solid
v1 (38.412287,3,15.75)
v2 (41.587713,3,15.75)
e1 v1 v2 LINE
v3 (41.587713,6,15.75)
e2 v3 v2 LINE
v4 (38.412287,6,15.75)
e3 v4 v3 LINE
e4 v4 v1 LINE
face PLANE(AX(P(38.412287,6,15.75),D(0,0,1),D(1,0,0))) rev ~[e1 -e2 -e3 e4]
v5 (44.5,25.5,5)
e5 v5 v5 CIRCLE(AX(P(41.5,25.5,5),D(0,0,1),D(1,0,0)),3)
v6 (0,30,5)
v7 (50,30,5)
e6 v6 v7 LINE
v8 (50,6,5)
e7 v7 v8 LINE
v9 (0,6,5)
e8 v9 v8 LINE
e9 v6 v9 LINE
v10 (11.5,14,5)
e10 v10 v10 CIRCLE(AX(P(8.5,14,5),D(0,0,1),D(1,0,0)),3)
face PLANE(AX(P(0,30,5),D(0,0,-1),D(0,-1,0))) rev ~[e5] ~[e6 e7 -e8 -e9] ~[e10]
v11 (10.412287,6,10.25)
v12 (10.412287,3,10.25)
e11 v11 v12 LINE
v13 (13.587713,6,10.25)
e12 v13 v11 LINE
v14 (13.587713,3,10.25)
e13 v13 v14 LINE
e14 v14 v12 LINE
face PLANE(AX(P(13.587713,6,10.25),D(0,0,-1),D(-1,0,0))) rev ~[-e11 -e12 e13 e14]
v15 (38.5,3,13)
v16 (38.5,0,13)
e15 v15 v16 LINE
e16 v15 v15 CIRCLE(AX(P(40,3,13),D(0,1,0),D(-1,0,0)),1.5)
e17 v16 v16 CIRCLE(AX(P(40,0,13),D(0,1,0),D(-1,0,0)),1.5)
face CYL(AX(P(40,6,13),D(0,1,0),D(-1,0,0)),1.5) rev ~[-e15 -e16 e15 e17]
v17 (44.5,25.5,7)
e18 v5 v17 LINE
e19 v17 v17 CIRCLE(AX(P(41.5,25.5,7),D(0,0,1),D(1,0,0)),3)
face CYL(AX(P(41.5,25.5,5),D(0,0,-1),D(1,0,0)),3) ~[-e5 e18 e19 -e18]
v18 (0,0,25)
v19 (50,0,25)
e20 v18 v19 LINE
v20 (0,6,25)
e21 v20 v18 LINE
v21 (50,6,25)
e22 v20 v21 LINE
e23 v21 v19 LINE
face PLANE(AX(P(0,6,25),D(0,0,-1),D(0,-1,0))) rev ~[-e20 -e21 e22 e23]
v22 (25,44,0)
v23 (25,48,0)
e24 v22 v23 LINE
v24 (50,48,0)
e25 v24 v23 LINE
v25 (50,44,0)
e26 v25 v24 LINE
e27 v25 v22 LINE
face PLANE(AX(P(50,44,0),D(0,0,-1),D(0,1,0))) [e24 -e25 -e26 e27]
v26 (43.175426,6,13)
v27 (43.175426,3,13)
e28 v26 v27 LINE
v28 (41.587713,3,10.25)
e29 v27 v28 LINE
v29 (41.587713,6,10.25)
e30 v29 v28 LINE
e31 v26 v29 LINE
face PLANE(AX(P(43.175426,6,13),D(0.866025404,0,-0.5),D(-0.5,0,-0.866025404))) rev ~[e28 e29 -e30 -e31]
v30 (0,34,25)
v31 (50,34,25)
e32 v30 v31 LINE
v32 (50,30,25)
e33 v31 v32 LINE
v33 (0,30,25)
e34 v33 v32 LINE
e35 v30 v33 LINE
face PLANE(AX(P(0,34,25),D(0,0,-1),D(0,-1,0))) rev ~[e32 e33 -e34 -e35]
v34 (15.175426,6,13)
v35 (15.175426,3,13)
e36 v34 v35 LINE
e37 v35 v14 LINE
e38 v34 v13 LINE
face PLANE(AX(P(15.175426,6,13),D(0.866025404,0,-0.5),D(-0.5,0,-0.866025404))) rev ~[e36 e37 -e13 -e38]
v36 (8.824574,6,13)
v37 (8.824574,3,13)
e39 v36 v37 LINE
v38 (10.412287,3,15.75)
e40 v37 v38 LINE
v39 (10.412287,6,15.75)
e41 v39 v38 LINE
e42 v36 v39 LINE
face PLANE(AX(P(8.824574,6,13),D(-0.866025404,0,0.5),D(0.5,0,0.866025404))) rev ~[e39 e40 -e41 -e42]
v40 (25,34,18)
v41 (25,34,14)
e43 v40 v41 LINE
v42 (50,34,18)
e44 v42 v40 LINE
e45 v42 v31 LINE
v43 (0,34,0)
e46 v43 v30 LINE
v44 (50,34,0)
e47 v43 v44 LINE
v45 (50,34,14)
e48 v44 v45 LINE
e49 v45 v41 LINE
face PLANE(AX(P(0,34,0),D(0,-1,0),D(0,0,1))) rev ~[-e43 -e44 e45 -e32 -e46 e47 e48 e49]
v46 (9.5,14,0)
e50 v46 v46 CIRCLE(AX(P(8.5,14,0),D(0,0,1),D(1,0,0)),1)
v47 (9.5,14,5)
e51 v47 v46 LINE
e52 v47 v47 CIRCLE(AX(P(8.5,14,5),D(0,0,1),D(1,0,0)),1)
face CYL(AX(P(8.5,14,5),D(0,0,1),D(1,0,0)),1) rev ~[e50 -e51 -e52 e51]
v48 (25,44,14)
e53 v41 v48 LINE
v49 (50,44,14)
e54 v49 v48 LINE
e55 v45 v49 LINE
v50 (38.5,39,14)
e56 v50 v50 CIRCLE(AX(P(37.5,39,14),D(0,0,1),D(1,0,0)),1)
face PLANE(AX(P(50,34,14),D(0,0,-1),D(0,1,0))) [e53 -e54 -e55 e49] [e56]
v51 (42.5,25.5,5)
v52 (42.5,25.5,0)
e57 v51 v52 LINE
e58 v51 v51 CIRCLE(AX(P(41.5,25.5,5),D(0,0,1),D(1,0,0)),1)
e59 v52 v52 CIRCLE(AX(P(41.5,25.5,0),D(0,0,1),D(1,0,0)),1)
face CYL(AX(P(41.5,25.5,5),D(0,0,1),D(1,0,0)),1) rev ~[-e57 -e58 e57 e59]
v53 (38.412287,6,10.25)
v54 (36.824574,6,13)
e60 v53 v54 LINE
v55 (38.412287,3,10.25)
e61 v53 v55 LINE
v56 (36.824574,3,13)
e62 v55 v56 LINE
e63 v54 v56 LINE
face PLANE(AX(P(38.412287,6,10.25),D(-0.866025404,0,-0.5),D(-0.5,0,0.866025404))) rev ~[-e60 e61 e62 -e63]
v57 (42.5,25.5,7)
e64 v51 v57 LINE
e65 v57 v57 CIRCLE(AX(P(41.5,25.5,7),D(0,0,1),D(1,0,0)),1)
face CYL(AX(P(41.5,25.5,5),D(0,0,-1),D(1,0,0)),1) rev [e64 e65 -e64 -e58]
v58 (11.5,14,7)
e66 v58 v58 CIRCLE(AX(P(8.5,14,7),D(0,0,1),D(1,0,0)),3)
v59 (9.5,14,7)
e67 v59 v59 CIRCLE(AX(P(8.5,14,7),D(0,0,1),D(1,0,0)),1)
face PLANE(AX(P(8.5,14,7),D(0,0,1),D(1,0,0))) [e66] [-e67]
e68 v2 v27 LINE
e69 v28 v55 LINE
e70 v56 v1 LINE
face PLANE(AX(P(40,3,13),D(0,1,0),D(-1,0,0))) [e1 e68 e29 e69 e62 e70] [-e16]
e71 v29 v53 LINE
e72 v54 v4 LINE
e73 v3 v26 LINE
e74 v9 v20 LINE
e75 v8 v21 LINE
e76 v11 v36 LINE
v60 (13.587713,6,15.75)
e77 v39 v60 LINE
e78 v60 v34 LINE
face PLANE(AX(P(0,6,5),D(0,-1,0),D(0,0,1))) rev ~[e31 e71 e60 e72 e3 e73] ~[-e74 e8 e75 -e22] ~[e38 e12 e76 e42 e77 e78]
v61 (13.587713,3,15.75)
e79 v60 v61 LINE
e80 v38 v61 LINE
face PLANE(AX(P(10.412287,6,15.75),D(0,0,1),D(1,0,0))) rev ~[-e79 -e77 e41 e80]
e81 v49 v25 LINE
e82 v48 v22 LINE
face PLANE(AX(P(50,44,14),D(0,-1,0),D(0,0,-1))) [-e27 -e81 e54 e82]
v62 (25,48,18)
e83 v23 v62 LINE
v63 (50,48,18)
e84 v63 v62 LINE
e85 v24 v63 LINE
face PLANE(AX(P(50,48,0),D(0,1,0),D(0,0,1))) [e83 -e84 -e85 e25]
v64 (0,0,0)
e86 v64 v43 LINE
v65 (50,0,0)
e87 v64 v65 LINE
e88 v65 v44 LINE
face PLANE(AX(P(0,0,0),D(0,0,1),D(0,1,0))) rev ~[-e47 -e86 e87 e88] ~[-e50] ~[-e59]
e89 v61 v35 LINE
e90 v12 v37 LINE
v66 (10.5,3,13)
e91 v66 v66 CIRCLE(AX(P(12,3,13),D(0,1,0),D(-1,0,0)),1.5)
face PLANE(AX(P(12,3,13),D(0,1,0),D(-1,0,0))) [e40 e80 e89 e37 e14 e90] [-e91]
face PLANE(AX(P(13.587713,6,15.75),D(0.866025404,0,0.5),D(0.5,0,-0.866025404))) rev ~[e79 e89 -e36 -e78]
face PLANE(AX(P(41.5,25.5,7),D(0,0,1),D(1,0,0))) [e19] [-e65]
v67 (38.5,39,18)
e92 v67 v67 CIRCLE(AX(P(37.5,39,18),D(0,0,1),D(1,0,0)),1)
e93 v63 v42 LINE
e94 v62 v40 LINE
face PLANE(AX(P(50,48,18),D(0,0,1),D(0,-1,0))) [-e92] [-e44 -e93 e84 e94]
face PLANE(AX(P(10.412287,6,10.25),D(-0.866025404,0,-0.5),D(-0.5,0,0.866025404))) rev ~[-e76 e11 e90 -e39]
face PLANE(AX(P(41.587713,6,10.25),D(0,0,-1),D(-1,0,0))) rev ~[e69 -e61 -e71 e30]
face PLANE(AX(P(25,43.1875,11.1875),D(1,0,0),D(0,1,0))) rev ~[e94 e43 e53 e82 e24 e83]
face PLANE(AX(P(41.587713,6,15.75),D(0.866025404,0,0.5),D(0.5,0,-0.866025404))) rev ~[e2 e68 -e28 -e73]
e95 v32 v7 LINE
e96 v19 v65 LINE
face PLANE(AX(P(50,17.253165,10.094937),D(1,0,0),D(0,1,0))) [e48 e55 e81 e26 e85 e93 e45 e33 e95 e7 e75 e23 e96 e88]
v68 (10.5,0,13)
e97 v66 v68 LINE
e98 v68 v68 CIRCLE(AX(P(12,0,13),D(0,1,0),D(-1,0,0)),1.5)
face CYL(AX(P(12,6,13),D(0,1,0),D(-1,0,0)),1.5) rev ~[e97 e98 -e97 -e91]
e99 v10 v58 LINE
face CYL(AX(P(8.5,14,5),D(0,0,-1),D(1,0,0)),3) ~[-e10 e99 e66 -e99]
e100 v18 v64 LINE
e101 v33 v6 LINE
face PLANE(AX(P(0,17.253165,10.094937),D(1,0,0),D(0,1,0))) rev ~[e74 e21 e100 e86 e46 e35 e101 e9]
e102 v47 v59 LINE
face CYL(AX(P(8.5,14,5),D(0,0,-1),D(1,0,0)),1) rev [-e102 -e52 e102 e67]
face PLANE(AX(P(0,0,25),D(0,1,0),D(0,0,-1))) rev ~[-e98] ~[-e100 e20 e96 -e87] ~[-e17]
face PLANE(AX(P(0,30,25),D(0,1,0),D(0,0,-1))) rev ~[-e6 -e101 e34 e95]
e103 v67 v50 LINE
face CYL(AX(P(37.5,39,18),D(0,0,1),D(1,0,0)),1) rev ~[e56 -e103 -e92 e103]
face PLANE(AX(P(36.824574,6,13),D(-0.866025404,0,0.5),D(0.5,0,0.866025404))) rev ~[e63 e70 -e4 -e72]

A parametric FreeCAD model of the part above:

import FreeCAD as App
import Part
import Sketcher
Q = App.Units.Quantity

doc = App.newDocument("Part")
body = doc.addObject("PartDesign::Body", "Body")

# Sketch on YZ plane
sketch1 = body.newObject("Sketcher::SketchObject", "Sketch")
sketch1.AttachmentSupport = (doc.getObject("YZ_Plane"), [""])
sketch1.MapMode = "FlatFace"
sketch1.addGeometry([
    Part.LineSegment(App.Vector(6, 5, 0), App.Vector(6, 25, 0)),  # 0
    Part.LineSegment(App.Vector(6, 25, 0), App.Vector(0, 25, 0)),  # 1
    Part.LineSegment(App.Vector(0, 25, 0), App.Vector(0, 0, 0)),  # 2
    Part.LineSegment(App.Vector(0, 0, 0), App.Vector(34, 0, 0)),  # 3
    Part.LineSegment(App.Vector(34, 0, 0), App.Vector(34, 25, 0)),  # 4
    Part.LineSegment(App.Vector(34, 25, 0), App.Vector(30, 25, 0)),  # 5
    Part.LineSegment(App.Vector(30, 25, 0), App.Vector(30, 5, 0)),  # 6
    Part.LineSegment(App.Vector(30, 5, 0), App.Vector(6, 5, 0)),  # 7
], False)
sketch1.addConstraint([
    Sketcher.Constraint("Coincident", 0, 2, 1, 1),
    Sketcher.Constraint("Coincident", 1, 2, 2, 1),
    Sketcher.Constraint("Coincident", 2, 2, 3, 1),
    Sketcher.Constraint("Coincident", 3, 2, 4, 1),
    Sketcher.Constraint("Coincident", 4, 2, 5, 1),
    Sketcher.Constraint("Coincident", 5, 2, 6, 1),
    Sketcher.Constraint("Coincident", 6, 2, 7, 1),
    Sketcher.Constraint("Coincident", 7, 2, 0, 1),
    Sketcher.Constraint("Vertical", 0),
    Sketcher.Constraint("Horizontal", 1),
    Sketcher.Constraint("Vertical", 2),
    Sketcher.Constraint("Horizontal", 3),
    Sketcher.Constraint("Vertical", 4),
    Sketcher.Constraint("Horizontal", 5),
    Sketcher.Constraint("Vertical", 6),
    Sketcher.Constraint("Horizontal", 7),
    Sketcher.Constraint("Coincident", 2, 2, -1, 1),
    Sketcher.Constraint("Horizontal", 1, 2, 4, 2),
    Sketcher.Constraint("DistanceX", 1, 2, 1, 1, Q("6 mm")),
    Sketcher.Constraint("DistanceX", 3, 1, 3, 2, Q("34 mm")),
    Sketcher.Constraint("DistanceX", 5, 2, 5, 1, Q("4 mm")),
    Sketcher.Constraint("DistanceY", 0, 1, 0, 2, Q("20 mm")),
    Sketcher.Constraint("DistanceY", 2, 2, 2, 1, Q("25 mm")),
])
pad1 = body.newObject("PartDesign::Pad", "Pad")
pad1.Profile = sketch1
pad1.Length = 50

# Sketch on XZ plane
sketch2 = body.newObject("Sketcher::SketchObject", "Sketch001")
sketch2.AttachmentSupport = (doc.getObject("XZ_Plane"), [""])
sketch2.MapMode = "FlatFace"
sketch2.AttachmentOffset = App.Placement(App.Vector(0, 0, -6), App.Rotation())
sketch2.addGeometry([
    Part.Circle(App.Vector(40, 13, 0), App.Vector(0, 0, 1), 1.5),
    Part.Circle(App.Vector(12, 13, 0), App.Vector(0, 0, 1), 1.5),
], False)
sketch2.addConstraint([
    Sketcher.Constraint("Equal", 0, 1),
    Sketcher.Constraint("Horizontal", 0, 3, 1, 3),
    Sketcher.Constraint("Diameter", 0, Q("3 mm")),
    Sketcher.Constraint("DistanceX", -1, 1, 0, 3, Q("40 mm")),
    Sketcher.Constraint("DistanceY", -1, 1, 0, 3, Q("13 mm")),
    Sketcher.Constraint("DistanceX", -1, 1, 1, 3, Q("12 mm")),
])
pocket1 = body.newObject("PartDesign::Pocket", "Pocket")
pocket1.Profile = sketch2
pocket1.Type = "ThroughAll"
pocket1.Reversed = True

# Sketch on XZ plane
sketch3 = body.newObject("Sketcher::SketchObject", "Sketch002")
sketch3.AttachmentSupport = (doc.getObject("XZ_Plane"), [""])
sketch3.MapMode = "FlatFace"
sketch3.AttachmentOffset = App.Placement(App.Vector(0, 0, -6), App.Rotation())
sketch3.addGeometry([
    Part.LineSegment(App.Vector(41.587713, 15.75, 0), App.Vector(43.175426, 13, 0)),  # 0
    Part.LineSegment(App.Vector(43.175426, 13, 0), App.Vector(41.587713, 10.25, 0)),  # 1
    Part.LineSegment(App.Vector(41.587713, 10.25, 0), App.Vector(38.412287, 10.25, 0)),  # 2
    Part.LineSegment(App.Vector(38.412287, 10.25, 0), App.Vector(36.824574, 13, 0)),  # 3
    Part.LineSegment(App.Vector(36.824574, 13, 0), App.Vector(38.412287, 15.75, 0)),  # 4
    Part.LineSegment(App.Vector(38.412287, 15.75, 0), App.Vector(41.587713, 15.75, 0)),  # 5
    Part.Circle(App.Vector(40, 13, 0), App.Vector(0, 0, 1), 1.5),  # 6
    Part.LineSegment(App.Vector(13.587713, 15.75, 0), App.Vector(15.175426, 13, 0)),  # 7
    Part.LineSegment(App.Vector(15.175426, 13, 0), App.Vector(13.587713, 10.25, 0)),  # 8
    Part.LineSegment(App.Vector(13.587713, 10.25, 0), App.Vector(10.412287, 10.25, 0)),  # 9
    Part.LineSegment(App.Vector(10.412287, 10.25, 0), App.Vector(8.824574, 13, 0)),  # 10
    Part.LineSegment(App.Vector(8.824574, 13, 0), App.Vector(10.412287, 15.75, 0)),  # 11
    Part.LineSegment(App.Vector(10.412287, 15.75, 0), App.Vector(13.587713, 15.75, 0)),  # 12
    Part.Circle(App.Vector(12, 13, 0), App.Vector(0, 0, 1), 1.5),  # 13
], False)
sketch3.addConstraint([
    Sketcher.Constraint("Coincident", 0, 2, 1, 1),
    Sketcher.Constraint("Coincident", 1, 2, 2, 1),
    Sketcher.Constraint("Coincident", 2, 2, 3, 1),
    Sketcher.Constraint("Coincident", 3, 2, 4, 1),
    Sketcher.Constraint("Coincident", 4, 2, 5, 1),
    Sketcher.Constraint("Coincident", 5, 2, 0, 1),
    Sketcher.Constraint("Coincident", 7, 2, 8, 1),
    Sketcher.Constraint("Coincident", 8, 2, 9, 1),
    Sketcher.Constraint("Coincident", 9, 2, 10, 1),
    Sketcher.Constraint("Coincident", 10, 2, 11, 1),
    Sketcher.Constraint("Coincident", 11, 2, 12, 1),
    Sketcher.Constraint("Coincident", 12, 2, 7, 1),
    Sketcher.Constraint("Horizontal", 2),
    Sketcher.Constraint("Horizontal", 5),
    Sketcher.Constraint("Horizontal", 9),
    Sketcher.Constraint("Horizontal", 12),
    Sketcher.Constraint("Equal", 6, 13),
    Sketcher.Constraint("Parallel", 0, 3),
    Sketcher.Constraint("Parallel", 1, 4),
    Sketcher.Constraint("Parallel", 3, 7),
    Sketcher.Constraint("Parallel", 4, 8),
    Sketcher.Constraint("Parallel", 7, 10),
    Sketcher.Constraint("Parallel", 8, 11),
    Sketcher.Constraint("Horizontal", 6, 3, 13, 3),
    Sketcher.Constraint("Horizontal", 13, 3, 0, 2),
    Sketcher.Constraint("Horizontal", 0, 2, 3, 2),
    Sketcher.Constraint("Horizontal", 3, 2, 7, 2),
    Sketcher.Constraint("Horizontal", 2, 2, 8, 2),
    Sketcher.Constraint("Horizontal", 7, 2, 10, 2),
    Sketcher.Constraint("Horizontal", 5, 2, 11, 2),
    Sketcher.Constraint("Vertical", 2, 2, 4, 2),
    Sketcher.Constraint("Vertical", 1, 2, 5, 2),
    Sketcher.Constraint("Equal", 5, 9),
    Sketcher.Constraint("Diameter", 6, Q("3 mm")),
    Sketcher.Constraint("Angle", 0, Q("-60 deg")),
    Sketcher.Constraint("DistanceX", -1, 1, 6, 3, Q("40 mm")),
    Sketcher.Constraint("DistanceY", -1, 1, 6, 3, Q("13 mm")),
    Sketcher.Constraint("DistanceX", -1, 1, 13, 3, Q("12 mm")),
    Sketcher.Constraint("DistanceX", 9, 2, 2, 2, Q("28 mm")),
    Sketcher.Constraint("DistanceY", 2, 2, 4, 2, Q("5.5 mm")),
    Sketcher.Constraint("DistanceX", 2, 2, 2, 1, Q("3.175426 mm")),
    Sketcher.Constraint("DistanceX", -1, 1, 0, 2, Q("43.175426 mm")),
])
pocket2 = body.newObject("PartDesign::Pocket", "Pocket001")
pocket2.Profile = sketch3
pocket2.Length = 3
pocket2.Reversed = True

# Sketch on XY plane
sketch4 = body.newObject("Sketcher::SketchObject", "Sketch003")
sketch4.AttachmentSupport = (doc.getObject("XY_Plane"), [""])
sketch4.MapMode = "FlatFace"
sketch4.AttachmentOffset = App.Placement(App.Vector(0, 0, 5), App.Rotation())
sketch4.addGeometry([
    Part.Circle(App.Vector(8.5, 14, 0), App.Vector(0, 0, 1), 1),
    Part.Circle(App.Vector(41.5, 25.5, 0), App.Vector(0, 0, 1), 1),
], False)
sketch4.addConstraint([
    Sketcher.Constraint("Equal", 0, 1),
    Sketcher.Constraint("Diameter", 0, Q("2 mm")),
    Sketcher.Constraint("DistanceY", -1, 1, 0, 3, Q("14 mm")),
    Sketcher.Constraint("DistanceX", 0, 3, 1, 3, Q("33 mm")),
    Sketcher.Constraint("DistanceX", -1, 1, 0, 3, Q("8.5 mm")),
    Sketcher.Constraint("DistanceY", -1, 1, 1, 3, Q("25.5 mm")),
])
pocket3 = body.newObject("PartDesign::Pocket", "Pocket002")
pocket3.Profile = sketch4
pocket3.Type = "ThroughAll"

# Sketch on XY plane
sketch5 = body.newObject("Sketcher::SketchObject", "Sketch004")
sketch5.AttachmentSupport = (doc.getObject("XY_Plane"), [""])
sketch5.MapMode = "FlatFace"
sketch5.AttachmentOffset = App.Placement(App.Vector(0, 0, 5), App.Rotation())
sketch5.addGeometry([
    Part.Circle(App.Vector(8.5, 14, 0), App.Vector(0, 0, 1), 3),
    Part.Circle(App.Vector(8.5, 14, 0), App.Vector(0, 0, 1), 1),
    Part.Circle(App.Vector(41.5, 25.5, 0), App.Vector(0, 0, 1), 3),
    Part.Circle(App.Vector(41.5, 25.5, 0), App.Vector(0, 0, 1), 1),
], False)
sketch5.addConstraint([
    Sketcher.Constraint("Coincident", 1, 3, 0, 3),
    Sketcher.Constraint("Coincident", 3, 3, 2, 3),
    Sketcher.Constraint("Equal", 0, 2),
    Sketcher.Constraint("Equal", 1, 3),
    Sketcher.Constraint("Diameter", 0, Q("6 mm")),
    Sketcher.Constraint("Diameter", 1, Q("2 mm")),
    Sketcher.Constraint("DistanceY", -1, 1, 0, 3, Q("14 mm")),
    Sketcher.Constraint("DistanceX", 0, 3, 2, 3, Q("33 mm")),
    Sketcher.Constraint("DistanceX", -1, 1, 0, 3, Q("8.5 mm")),
    Sketcher.Constraint("DistanceY", -1, 1, 2, 3, Q("25.5 mm")),
])
pad2 = body.newObject("PartDesign::Pad", "Pad001")
pad2.Profile = sketch5
pad2.Length = 2

# Sketch on YZ plane
sketch6 = body.newObject("Sketcher::SketchObject", "Sketch005")
sketch6.AttachmentSupport = (doc.getObject("YZ_Plane"), [""])
sketch6.MapMode = "FlatFace"
sketch6.AttachmentOffset = App.Placement(App.Vector(0, 0, 50), App.Rotation())
sketch6.addGeometry([
    Part.LineSegment(App.Vector(48, 18, 0), App.Vector(34, 18, 0)),  # 0
    Part.LineSegment(App.Vector(34, 18, 0), App.Vector(34, 14, 0)),  # 1
    Part.LineSegment(App.Vector(34, 14, 0), App.Vector(44, 14, 0)),  # 2
    Part.LineSegment(App.Vector(44, 14, 0), App.Vector(44, 0, 0)),  # 3
    Part.LineSegment(App.Vector(44, 0, 0), App.Vector(48, 0, 0)),  # 4
    Part.LineSegment(App.Vector(48, 0, 0), App.Vector(48, 18, 0)),  # 5
], False)
sketch6.addConstraint([
    Sketcher.Constraint("Coincident", 0, 2, 1, 1),
    Sketcher.Constraint("Coincident", 1, 2, 2, 1),
    Sketcher.Constraint("Coincident", 2, 2, 3, 1),
    Sketcher.Constraint("Coincident", 3, 2, 4, 1),
    Sketcher.Constraint("Coincident", 4, 2, 5, 1),
    Sketcher.Constraint("Coincident", 5, 2, 0, 1),
    Sketcher.Constraint("Horizontal", 0),
    Sketcher.Constraint("Vertical", 1),
    Sketcher.Constraint("Horizontal", 2),
    Sketcher.Constraint("Vertical", 3),
    Sketcher.Constraint("Horizontal", 4),
    Sketcher.Constraint("Vertical", 5),
    Sketcher.Constraint("PointOnObject", 3, 2, -1),
    Sketcher.Constraint("Equal", 4, 1),
    Sketcher.Constraint("Equal", 0, 3),
    Sketcher.Constraint("DistanceX", 0, 2, 0, 1, Q("14 mm")),
    Sketcher.Constraint("DistanceX", 2, 1, 2, 2, Q("10 mm")),
    Sketcher.Constraint("DistanceX", -1, 1, 0, 2, Q("34 mm")),
])
pad3 = body.newObject("PartDesign::Pad", "Pad002")
pad3.Profile = sketch6
pad3.Length = 25
pad3.Reversed = True

# Sketch on XY plane
sketch7 = body.newObject("Sketcher::SketchObject", "Sketch006")
sketch7.AttachmentSupport = (doc.getObject("XY_Plane"), [""])
sketch7.MapMode = "FlatFace"
sketch7.AttachmentOffset = App.Placement(App.Vector(0, 0, 18), App.Rotation())
sketch7.addGeometry(Part.Circle(App.Vector(37.5, 39, 0), App.Vector(0, 0, 1), 1), False)
sketch7.addConstraint([
    Sketcher.Constraint("Diameter", 0, Q("2 mm")),
    Sketcher.Constraint("DistanceY", -1, 1, 0, 3, Q("39 mm")),
    Sketcher.Constraint("DistanceX", -1, 1, 0, 3, Q("37.5 mm")),
])
pocket4 = body.newObject("PartDesign::Pocket", "Pocket003")
pocket4.Profile = sketch7
pocket4.Type = "ThroughAll"

doc.recompute()
